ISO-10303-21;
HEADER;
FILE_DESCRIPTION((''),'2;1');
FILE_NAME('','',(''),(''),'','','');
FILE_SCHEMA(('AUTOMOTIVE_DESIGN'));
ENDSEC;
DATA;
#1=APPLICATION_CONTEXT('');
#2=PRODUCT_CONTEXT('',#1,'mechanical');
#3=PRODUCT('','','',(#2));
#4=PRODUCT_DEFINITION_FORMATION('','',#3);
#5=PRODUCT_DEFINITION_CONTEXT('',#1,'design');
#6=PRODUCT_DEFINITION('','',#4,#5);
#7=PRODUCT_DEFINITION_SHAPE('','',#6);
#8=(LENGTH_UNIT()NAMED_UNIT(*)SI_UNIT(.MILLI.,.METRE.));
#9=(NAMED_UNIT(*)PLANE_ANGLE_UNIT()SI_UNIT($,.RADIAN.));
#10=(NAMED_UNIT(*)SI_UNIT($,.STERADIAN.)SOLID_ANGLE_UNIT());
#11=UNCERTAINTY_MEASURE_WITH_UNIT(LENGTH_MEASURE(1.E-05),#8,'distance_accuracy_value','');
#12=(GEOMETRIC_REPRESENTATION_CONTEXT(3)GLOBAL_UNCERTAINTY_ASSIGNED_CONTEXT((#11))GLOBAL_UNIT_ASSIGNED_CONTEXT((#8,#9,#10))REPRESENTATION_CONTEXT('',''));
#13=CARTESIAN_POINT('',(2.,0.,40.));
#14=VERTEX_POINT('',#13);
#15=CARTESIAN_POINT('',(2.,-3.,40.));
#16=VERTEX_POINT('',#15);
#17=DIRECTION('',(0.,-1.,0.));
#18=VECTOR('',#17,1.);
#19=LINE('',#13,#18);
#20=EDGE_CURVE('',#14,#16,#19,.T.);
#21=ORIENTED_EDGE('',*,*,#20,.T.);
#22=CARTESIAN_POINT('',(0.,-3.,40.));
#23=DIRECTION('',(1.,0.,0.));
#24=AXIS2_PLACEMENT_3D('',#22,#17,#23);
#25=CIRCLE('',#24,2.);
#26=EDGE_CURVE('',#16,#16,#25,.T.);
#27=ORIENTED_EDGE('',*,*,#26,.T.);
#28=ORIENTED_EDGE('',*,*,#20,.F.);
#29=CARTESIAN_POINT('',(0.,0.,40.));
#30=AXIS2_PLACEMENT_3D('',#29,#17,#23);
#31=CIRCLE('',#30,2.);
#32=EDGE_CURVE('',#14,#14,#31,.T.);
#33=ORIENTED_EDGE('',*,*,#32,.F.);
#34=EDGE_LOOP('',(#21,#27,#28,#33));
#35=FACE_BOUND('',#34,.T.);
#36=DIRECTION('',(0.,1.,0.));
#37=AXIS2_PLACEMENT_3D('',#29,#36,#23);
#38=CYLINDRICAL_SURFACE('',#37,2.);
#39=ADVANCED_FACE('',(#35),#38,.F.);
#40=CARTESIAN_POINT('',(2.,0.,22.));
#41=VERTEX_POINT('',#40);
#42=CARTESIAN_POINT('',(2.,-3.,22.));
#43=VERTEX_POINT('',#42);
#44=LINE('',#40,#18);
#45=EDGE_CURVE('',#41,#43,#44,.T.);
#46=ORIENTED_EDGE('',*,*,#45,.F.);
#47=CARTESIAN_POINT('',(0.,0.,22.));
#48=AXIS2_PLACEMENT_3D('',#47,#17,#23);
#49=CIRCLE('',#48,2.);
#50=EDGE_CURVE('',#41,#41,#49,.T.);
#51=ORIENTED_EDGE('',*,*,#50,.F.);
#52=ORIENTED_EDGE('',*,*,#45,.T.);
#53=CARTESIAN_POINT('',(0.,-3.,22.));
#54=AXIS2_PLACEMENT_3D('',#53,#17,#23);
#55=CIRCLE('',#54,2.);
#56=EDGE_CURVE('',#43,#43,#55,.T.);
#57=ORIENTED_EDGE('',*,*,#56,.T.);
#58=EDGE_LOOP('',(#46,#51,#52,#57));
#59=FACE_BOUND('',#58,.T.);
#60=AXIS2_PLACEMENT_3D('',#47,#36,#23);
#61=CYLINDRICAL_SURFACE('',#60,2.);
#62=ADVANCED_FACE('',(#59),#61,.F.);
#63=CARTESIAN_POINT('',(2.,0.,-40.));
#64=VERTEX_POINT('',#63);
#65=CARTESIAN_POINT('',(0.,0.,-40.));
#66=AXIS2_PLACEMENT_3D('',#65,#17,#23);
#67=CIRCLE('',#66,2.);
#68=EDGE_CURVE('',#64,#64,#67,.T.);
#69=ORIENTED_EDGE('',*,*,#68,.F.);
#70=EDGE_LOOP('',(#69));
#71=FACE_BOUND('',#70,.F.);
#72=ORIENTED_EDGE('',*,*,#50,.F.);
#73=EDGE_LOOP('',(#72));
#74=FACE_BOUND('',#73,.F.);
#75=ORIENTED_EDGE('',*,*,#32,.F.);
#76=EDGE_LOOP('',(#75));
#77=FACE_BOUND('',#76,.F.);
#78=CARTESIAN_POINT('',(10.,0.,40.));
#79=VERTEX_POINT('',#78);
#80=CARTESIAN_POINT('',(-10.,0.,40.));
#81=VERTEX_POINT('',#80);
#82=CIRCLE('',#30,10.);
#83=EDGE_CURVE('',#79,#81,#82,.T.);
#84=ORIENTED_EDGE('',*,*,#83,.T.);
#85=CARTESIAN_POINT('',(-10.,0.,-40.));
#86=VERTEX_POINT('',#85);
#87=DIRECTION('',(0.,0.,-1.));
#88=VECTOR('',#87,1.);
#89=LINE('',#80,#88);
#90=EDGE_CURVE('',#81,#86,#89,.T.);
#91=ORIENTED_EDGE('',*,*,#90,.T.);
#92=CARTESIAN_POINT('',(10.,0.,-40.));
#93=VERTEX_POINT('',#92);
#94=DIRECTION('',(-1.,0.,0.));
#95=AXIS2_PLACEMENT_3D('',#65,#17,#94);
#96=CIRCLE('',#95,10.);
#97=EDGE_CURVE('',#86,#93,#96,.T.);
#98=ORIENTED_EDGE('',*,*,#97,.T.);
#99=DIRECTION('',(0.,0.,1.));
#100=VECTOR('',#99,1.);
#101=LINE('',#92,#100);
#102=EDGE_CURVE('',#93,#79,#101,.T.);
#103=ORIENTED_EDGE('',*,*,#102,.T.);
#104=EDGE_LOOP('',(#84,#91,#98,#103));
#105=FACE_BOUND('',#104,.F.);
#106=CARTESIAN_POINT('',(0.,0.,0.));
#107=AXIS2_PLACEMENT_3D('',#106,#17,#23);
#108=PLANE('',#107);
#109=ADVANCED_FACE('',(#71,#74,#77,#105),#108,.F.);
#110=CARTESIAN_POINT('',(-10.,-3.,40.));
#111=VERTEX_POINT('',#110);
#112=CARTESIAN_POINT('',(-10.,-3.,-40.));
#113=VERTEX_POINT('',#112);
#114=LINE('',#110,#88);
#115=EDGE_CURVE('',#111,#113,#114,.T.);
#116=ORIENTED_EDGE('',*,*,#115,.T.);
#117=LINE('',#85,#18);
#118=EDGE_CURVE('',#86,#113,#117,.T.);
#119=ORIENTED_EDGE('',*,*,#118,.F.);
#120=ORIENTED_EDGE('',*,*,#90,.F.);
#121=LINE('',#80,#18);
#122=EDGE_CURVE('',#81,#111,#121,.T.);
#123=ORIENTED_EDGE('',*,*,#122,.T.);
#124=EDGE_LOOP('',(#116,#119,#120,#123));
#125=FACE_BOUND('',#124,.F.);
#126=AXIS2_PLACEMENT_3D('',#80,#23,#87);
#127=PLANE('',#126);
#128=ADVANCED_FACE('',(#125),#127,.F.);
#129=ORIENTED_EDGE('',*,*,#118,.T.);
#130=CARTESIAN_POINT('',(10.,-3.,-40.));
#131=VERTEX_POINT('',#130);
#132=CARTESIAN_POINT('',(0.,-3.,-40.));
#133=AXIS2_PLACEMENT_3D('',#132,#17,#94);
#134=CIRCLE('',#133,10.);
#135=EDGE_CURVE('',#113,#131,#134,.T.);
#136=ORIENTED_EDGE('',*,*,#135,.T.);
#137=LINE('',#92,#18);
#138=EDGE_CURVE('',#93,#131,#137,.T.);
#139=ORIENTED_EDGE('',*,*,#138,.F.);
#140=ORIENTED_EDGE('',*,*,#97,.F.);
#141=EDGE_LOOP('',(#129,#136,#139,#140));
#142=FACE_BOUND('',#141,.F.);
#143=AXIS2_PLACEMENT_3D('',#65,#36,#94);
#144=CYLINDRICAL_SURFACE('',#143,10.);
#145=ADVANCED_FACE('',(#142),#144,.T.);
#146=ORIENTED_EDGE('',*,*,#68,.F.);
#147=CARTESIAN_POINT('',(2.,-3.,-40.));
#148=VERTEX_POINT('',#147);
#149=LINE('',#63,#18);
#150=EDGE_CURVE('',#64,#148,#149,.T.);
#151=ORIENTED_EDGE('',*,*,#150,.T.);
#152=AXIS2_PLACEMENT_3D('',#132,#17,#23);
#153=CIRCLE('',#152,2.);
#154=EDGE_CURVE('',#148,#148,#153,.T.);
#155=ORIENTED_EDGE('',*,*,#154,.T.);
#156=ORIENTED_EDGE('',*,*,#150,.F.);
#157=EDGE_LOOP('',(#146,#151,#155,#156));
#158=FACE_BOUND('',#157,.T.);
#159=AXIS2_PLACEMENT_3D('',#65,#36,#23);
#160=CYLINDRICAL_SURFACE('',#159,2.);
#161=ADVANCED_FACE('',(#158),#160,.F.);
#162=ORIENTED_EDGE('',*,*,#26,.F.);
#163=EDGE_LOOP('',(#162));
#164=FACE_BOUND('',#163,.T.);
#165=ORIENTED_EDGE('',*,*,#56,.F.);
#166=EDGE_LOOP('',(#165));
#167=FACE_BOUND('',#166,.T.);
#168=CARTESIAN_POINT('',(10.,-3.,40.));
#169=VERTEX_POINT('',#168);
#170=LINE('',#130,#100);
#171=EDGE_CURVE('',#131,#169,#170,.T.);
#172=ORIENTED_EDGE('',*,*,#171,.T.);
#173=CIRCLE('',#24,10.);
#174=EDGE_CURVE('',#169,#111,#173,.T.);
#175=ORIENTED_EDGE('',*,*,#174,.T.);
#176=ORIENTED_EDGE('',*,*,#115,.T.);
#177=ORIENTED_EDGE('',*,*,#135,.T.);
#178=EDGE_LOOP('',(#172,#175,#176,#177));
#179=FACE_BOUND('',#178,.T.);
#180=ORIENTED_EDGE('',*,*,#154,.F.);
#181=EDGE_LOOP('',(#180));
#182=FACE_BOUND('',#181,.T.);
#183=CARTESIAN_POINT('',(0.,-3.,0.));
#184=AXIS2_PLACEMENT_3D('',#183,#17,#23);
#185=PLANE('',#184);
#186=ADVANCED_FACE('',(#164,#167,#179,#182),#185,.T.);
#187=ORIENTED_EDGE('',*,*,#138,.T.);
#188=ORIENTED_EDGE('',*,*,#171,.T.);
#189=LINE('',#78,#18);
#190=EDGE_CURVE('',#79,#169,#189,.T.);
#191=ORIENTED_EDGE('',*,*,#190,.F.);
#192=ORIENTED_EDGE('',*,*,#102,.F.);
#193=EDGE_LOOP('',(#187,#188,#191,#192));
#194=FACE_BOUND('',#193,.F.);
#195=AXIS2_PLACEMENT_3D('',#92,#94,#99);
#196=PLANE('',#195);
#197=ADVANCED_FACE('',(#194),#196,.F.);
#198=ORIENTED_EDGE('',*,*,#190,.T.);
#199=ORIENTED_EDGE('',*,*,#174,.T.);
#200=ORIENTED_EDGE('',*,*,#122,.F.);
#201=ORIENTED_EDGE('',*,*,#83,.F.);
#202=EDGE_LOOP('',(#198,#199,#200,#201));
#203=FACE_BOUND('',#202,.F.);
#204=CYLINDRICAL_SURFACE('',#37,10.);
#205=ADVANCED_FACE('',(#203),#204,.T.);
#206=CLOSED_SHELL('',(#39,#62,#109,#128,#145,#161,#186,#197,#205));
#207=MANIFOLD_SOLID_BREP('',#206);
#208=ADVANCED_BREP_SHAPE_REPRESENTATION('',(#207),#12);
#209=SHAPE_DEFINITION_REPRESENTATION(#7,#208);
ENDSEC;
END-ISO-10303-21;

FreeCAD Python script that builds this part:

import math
import FreeCAD as App
import Part
import Sketcher
from FreeCAD import Vector

doc = App.newDocument("Part")
body = doc.addObject("PartDesign::Body", "Body")

# Sketch on XZ plane
sketch1 = body.newObject("Sketcher::SketchObject", "Sketch")
sketch1.AttachmentSupport = (doc.getObject("XZ_Plane"), [""])
sketch1.MapMode = "FlatFace"
sketch1.addGeometry(Part.ArcOfCircle(Part.Circle(Vector(0, -40, 0), Vector(0, 0, 1), 10), math.radians(180), math.radians(360)), False)
sketch1.addGeometry(Part.LineSegment(Vector(10, -40, 0), Vector(10, 40, 0)), False)
sketch1.addGeometry(Part.ArcOfCircle(Part.Circle(Vector(0, 40, 0), Vector(0, 0, 1), 10), math.radians(0), math.radians(180)), False)
sketch1.addGeometry(Part.LineSegment(Vector(-10, 40, 0), Vector(-10, -40, 0)), False)
sketch1.addGeometry(Part.Circle(Vector(0, -40, 0), Vector(0, 0, 1), 2), False)
sketch1.addGeometry(Part.Circle(Vector(0, 22, 0), Vector(0, 0, 1), 2), False)
sketch1.addGeometry(Part.Circle(Vector(0, 40, 0), Vector(0, 0, 1), 2), False)
sketch1.addConstraint(Sketcher.Constraint("Tangent", 0, 2, 1, 1))
sketch1.addConstraint(Sketcher.Constraint("Tangent", 1, 2, 2, 1))
sketch1.addConstraint(Sketcher.Constraint("Tangent", 2, 2, 3, 1))
sketch1.addConstraint(Sketcher.Constraint("Tangent", 3, 2, 0, 1))
sketch1.addConstraint(Sketcher.Constraint("Vertical", 1))
sketch1.addConstraint(Sketcher.Constraint("Vertical", 3))
sketch1.addConstraint(Sketcher.Constraint("Coincident", 4, 3, 0, 3))
sketch1.addConstraint(Sketcher.Constraint("Coincident", 6, 3, 2, 3))
sketch1.addConstraint(Sketcher.Constraint("Equal", 4, 5))
sketch1.addConstraint(Sketcher.Constraint("Equal", 5, 6))
sketch1.addConstraint(Sketcher.Constraint("Symmetric", 0, 3, 2, 3, -1, 1))
sketch1.addConstraint(Sketcher.Constraint("PointOnObject", 5, 3, -2))
sketch1.addConstraint(Sketcher.Constraint("Diameter", 4, 4.0))
sketch1.addConstraint(Sketcher.Constraint("Radius", 0, 10.0))
sketch1.addConstraint(Sketcher.Constraint("DistanceY", 1, 1, 1, 2, 80.0))
sketch1.addConstraint(Sketcher.Constraint("DistanceY", -1, 1, 5, 3, 22.0))
pad1 = body.newObject("PartDesign::Pad", "Pad")
pad1.Profile = sketch1
pad1.Length = 3

doc.recompute()
